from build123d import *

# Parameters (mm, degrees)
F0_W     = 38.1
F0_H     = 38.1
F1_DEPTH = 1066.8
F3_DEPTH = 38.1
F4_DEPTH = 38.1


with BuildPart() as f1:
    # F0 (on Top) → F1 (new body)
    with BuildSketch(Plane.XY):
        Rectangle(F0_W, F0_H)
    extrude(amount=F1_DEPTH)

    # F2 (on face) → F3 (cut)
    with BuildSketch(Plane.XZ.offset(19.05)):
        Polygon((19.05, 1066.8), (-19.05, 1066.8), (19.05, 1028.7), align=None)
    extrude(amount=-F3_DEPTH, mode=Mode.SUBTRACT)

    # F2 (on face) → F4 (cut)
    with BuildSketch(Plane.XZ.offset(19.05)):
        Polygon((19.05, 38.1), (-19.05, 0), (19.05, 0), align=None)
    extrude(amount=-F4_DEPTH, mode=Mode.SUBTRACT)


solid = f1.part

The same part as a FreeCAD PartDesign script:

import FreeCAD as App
import Part
import Sketcher

V = App.Vector
Q = App.Units.Quantity


def add_polygon(sketch, points):
    """Adds a closed chain of lines whose ends are joined by coincident constraints."""
    first, n = sketch.GeometryCount, len(points)
    for a, b in zip(points, points[1:] + points[:1]):
        sketch.addGeometry(Part.LineSegment(App.Vector(*a, 0), App.Vector(*b, 0)), False)
    for i in range(n):
        sketch.addConstraint(Sketcher.Constraint("Coincident", first + i, 2, first + (i + 1) % n, 1))

doc = App.newDocument("Part")
params = doc.addObject("Spreadsheet::Sheet", "Params")
for row, (alias, value) in enumerate([
    ("sketch1_width", "1.5 in"),
    ("pad1_length", "42 in"),
    ("sketch2_width", "1.5 in"),
    ("pocket1_length", "1.5 in"),
    ("sketch3_width", "1.5 in"),
    ("pocket2_length", "1.5 in"),
], start=1):
    params.set(f"A{row}", alias)
    params.set(f"B{row}", "=" + value)
    params.setAlias(f"B{row}", alias)

body = doc.addObject("PartDesign::Body", "Body")

# Sketch on XY plane
sketch1 = doc.addObject("Sketcher::SketchObject", "Sketch")
body.addObject(sketch1)
sketch1.AttachmentSupport = (doc.XY_Plane, [""])
sketch1.MapMode = "FlatFace"
add_polygon(sketch1, [(-19, 19), (-19, -19), (19, -19), (19, 19)])  # lines 0-3
sketch1.addConstraint([
    Sketcher.Constraint("Vertical", 0),
    Sketcher.Constraint("Horizontal", 1),
    Sketcher.Constraint("Vertical", 2),
    Sketcher.Constraint("Horizontal", 3),
    Sketcher.Constraint("Symmetric", 0, 2, 2, 2, -1, 1),
    Sketcher.Constraint("Equal", 3, 0),
    Sketcher.Constraint("DistanceX", 1, 1, 1, 2, Q("1.5 in")),
])
sketch1.setExpression("Constraints[10]", "Params.sketch1_width")
pad1 = doc.addObject("PartDesign::Pad", "Pad")
body.addObject(pad1)
pad1.Profile = sketch1
pad1.setExpression("Length", "Params.pad1_length")

# Sketch on XZ plane
sketch2 = doc.addObject("Sketcher::SketchObject", "Sketch001")
body.addObject(sketch2)
sketch2.AttachmentSupport = (doc.XZ_Plane, [""])
sketch2.MapMode = "FlatFace"
sketch2.AttachmentOffset = App.Placement(V(0, 0, 0.75 * 25.4), App.Rotation())
add_polygon(sketch2, [(19, 1067), (-19, 1067), (19, 1029)])  # lines 0-2
sketch2.addConstraint([
    Sketcher.Constraint("Horizontal", 0),
    Sketcher.Constraint("Vertical", 2),
    Sketcher.Constraint("Equal", 0, 2),
    Sketcher.Constraint("DistanceX", 0, 2, 0, 1, Q("1.5 in")),
    Sketcher.Constraint("DistanceY", -1, 1, 0, 2, Q("42 in")),
    Sketcher.Constraint("DistanceX", 0, 2, -1, 1, Q("0.75 in")),
])
sketch2.setExpression("Constraints[6]", "Params.sketch2_width")
pocket1 = doc.addObject("PartDesign::Pocket", "Pocket")
body.addObject(pocket1)
pocket1.Profile = sketch2
pocket1.setExpression("Length", "Params.pocket1_length")

# Sketch on XZ plane
sketch3 = doc.addObject("Sketcher::SketchObject", "Sketch002")
body.addObject(sketch3)
sketch3.AttachmentSupport = (doc.XZ_Plane, [""])
sketch3.MapMode = "FlatFace"
sketch3.AttachmentOffset = App.Placement(V(0, 0, 0.75 * 25.4), App.Rotation())
add_polygon(sketch3, [(19, 38), (-19, 0), (19, 0)])  # lines 0-2
sketch3.addConstraint([
    Sketcher.Constraint("Horizontal", 1),
    Sketcher.Constraint("Vertical", 2),
    Sketcher.Constraint("Symmetric", 0, 2, 1, 2, -1, 1),
    Sketcher.Constraint("Equal", 1, 2),
    Sketcher.Constraint("DistanceX", 1, 1, 1, 2, Q("1.5 in")),
])
sketch3.setExpression("Constraints[7]", "Params.sketch3_width")
pocket2 = doc.addObject("PartDesign::Pocket", "Pocket001")
body.addObject(pocket2)
pocket2.Profile = sketch3
pocket2.setExpression("Length", "Params.pocket2_length")

doc.recompute()
